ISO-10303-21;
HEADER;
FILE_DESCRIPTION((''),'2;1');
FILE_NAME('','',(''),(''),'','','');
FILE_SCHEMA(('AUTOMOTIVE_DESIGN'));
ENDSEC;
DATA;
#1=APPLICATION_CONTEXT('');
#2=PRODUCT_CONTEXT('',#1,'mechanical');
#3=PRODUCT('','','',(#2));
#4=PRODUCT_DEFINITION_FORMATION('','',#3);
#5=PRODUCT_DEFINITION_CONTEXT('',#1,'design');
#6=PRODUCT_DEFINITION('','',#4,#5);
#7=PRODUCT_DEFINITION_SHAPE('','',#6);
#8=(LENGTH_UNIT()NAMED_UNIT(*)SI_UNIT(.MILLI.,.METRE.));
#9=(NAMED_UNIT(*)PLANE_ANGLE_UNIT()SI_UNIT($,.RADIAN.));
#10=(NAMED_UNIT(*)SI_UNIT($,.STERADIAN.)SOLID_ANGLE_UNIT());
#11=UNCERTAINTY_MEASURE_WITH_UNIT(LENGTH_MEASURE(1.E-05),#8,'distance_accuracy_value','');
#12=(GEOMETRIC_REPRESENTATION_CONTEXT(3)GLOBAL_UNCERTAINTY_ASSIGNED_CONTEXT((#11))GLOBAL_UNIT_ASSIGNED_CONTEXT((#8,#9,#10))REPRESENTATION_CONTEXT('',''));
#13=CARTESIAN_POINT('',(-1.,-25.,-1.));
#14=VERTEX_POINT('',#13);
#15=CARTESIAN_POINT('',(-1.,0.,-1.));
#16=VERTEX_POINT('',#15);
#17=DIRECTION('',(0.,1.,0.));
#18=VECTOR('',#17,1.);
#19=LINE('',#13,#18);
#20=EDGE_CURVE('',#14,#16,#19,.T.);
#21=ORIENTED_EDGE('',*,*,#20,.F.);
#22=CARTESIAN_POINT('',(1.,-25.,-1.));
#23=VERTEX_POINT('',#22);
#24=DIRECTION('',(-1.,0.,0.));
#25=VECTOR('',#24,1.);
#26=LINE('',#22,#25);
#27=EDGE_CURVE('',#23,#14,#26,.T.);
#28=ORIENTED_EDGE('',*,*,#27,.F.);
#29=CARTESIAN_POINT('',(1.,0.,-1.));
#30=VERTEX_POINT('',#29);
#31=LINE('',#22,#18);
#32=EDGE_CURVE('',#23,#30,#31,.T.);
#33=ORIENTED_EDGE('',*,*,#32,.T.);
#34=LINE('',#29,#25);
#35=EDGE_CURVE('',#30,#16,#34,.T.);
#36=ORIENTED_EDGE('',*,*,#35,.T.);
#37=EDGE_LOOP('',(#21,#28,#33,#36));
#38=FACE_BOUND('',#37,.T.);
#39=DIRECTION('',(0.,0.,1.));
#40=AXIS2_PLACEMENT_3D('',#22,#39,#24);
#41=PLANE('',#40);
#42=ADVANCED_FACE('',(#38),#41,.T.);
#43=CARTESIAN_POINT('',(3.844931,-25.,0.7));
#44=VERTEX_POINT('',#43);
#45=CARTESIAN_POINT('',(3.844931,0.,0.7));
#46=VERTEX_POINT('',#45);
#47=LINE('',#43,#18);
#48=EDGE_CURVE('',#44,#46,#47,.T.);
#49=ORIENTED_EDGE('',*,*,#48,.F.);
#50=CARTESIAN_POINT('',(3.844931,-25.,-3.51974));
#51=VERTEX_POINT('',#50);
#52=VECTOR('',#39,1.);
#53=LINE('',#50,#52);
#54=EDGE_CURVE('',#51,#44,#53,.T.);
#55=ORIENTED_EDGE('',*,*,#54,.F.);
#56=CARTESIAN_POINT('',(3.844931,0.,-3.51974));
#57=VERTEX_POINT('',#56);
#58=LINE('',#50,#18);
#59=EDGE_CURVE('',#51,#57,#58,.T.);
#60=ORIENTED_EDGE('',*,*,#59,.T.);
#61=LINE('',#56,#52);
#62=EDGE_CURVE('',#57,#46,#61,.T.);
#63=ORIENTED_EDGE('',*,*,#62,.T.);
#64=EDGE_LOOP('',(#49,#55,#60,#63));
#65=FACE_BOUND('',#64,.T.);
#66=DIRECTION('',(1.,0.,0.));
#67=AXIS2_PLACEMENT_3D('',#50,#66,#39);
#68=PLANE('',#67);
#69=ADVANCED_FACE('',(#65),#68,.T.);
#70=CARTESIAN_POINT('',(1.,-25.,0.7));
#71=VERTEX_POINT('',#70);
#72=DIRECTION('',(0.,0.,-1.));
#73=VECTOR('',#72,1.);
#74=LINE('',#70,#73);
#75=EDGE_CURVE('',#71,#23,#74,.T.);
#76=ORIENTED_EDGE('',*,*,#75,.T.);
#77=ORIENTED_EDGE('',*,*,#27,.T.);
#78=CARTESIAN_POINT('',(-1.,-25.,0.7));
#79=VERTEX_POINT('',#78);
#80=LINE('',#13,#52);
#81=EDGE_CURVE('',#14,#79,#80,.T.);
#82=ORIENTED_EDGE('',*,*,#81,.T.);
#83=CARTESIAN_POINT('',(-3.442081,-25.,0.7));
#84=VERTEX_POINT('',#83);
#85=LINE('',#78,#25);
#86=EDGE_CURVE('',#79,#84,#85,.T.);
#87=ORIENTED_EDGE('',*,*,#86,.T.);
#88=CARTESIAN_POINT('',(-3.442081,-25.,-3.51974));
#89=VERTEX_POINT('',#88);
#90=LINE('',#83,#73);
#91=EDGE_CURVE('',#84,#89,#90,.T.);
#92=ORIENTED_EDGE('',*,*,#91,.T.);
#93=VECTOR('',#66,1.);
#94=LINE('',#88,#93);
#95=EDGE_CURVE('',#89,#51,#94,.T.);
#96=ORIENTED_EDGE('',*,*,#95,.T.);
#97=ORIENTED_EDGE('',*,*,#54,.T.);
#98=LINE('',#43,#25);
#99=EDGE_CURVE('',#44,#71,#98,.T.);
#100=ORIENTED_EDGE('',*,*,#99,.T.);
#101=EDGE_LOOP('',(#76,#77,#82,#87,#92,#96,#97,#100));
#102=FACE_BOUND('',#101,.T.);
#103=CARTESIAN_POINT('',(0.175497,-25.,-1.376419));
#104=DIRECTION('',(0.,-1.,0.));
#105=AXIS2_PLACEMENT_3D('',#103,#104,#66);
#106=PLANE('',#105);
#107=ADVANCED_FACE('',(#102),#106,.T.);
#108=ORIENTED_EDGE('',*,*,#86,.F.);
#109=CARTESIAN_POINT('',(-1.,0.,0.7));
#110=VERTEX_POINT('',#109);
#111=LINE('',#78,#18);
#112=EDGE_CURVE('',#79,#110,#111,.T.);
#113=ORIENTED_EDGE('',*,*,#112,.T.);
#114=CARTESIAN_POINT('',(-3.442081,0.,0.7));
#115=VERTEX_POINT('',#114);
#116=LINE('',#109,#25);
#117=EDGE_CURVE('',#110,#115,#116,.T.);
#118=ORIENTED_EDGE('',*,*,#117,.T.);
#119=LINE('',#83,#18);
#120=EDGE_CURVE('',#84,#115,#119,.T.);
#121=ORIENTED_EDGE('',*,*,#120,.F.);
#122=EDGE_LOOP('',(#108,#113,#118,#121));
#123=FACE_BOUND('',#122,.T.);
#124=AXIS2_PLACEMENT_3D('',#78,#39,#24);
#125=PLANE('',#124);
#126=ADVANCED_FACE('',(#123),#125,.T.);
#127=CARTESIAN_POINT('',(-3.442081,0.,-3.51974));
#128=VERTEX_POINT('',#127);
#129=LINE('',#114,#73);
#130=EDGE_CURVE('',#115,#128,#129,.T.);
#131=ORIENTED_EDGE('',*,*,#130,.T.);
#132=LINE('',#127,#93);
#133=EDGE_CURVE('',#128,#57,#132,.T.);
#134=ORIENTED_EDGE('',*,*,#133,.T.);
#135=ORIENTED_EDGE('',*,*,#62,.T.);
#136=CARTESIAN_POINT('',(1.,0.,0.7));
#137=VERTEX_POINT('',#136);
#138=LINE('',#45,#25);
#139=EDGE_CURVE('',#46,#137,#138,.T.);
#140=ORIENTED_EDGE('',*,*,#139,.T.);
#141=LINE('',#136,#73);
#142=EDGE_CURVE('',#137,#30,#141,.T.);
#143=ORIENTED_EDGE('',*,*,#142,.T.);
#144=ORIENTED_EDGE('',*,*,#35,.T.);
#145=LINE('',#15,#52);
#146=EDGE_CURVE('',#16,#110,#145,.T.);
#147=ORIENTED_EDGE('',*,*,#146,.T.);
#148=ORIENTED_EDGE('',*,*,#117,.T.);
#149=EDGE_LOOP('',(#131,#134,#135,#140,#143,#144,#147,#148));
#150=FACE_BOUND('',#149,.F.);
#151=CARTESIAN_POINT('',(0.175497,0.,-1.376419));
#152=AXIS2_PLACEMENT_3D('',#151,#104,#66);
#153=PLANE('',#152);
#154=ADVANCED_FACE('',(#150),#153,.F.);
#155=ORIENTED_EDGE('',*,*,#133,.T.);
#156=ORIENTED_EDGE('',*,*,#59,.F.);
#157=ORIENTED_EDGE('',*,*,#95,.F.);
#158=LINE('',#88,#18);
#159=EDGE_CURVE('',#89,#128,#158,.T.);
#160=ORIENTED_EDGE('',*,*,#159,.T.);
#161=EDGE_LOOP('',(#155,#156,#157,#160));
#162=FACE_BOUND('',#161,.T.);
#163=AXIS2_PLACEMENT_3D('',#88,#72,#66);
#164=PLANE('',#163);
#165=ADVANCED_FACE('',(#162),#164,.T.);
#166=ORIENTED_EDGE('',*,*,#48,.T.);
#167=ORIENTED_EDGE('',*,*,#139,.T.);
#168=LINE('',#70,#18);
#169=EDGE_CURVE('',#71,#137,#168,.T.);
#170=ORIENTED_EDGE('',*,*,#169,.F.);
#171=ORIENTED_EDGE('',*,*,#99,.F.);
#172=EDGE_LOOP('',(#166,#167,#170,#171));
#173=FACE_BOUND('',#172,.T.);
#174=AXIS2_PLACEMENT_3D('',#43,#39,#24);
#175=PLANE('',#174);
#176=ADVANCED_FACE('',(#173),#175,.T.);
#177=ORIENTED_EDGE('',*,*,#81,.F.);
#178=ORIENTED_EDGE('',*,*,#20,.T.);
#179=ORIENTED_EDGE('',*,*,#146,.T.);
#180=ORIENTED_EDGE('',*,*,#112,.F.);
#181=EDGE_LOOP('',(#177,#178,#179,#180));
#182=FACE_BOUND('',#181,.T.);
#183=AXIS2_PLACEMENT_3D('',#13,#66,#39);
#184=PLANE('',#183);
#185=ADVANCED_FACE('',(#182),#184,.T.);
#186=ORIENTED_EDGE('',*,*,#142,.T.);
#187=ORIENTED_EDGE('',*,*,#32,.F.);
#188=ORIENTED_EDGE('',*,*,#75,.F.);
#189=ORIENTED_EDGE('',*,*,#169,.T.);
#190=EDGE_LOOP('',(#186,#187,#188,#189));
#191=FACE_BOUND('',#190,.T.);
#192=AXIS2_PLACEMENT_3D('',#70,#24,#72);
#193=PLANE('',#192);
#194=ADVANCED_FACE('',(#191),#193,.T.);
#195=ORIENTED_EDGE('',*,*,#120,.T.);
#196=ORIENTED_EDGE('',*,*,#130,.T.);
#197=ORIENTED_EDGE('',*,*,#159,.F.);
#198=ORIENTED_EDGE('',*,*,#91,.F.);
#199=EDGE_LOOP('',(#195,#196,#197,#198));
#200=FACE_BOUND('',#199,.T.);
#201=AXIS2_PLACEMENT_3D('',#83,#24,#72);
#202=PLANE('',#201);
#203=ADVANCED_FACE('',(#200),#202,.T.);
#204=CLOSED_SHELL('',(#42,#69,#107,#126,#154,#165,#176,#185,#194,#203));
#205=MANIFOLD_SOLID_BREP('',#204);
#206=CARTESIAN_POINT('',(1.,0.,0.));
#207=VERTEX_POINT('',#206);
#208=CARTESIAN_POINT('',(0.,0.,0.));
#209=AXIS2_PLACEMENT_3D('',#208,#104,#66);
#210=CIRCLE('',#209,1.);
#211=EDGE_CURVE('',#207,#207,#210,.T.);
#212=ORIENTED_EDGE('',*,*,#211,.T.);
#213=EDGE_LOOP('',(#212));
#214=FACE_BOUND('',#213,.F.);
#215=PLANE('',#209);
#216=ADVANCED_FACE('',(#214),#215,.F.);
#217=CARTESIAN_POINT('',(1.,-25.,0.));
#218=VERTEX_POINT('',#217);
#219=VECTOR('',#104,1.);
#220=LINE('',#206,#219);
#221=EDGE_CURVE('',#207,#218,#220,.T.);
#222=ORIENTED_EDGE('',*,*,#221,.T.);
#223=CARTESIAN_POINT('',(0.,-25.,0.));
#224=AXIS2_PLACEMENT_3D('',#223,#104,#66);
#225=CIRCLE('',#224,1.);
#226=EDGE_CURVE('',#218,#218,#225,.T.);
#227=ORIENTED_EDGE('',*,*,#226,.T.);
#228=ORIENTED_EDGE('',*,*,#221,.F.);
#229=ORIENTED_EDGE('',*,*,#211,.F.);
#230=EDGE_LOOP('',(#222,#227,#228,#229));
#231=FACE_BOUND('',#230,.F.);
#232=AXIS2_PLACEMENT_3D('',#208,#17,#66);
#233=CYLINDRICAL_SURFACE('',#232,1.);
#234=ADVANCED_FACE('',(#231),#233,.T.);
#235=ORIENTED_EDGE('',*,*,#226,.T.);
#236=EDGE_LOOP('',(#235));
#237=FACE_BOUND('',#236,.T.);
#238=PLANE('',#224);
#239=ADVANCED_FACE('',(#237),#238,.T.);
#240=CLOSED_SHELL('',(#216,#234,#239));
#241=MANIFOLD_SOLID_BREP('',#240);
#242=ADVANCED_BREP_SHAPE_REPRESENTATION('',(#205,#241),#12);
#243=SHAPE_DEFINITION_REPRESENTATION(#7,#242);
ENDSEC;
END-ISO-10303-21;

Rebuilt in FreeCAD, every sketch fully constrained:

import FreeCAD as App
import Part
import Sketcher
from FreeCAD import Vector
Q = App.Units.Quantity


def add_polygon(sketch, points):
    """Adds a closed chain of lines whose ends are joined by coincident constraints."""
    first, n = sketch.GeometryCount, len(points)
    for a, b in zip(points, points[1:] + points[:1]):
        sketch.addGeometry(Part.LineSegment(App.Vector(*a, 0), App.Vector(*b, 0)), False)
    for i in range(n):
        sketch.addConstraint(Sketcher.Constraint("Coincident", first + i, 2, first + (i + 1) % n, 1))

doc = App.newDocument("Part")
body = doc.addObject("PartDesign::Body", "Body")

# Sketch on XZ plane
sketch1 = body.newObject("Sketcher::SketchObject", "Sketch")
sketch1.AttachmentSupport = (doc.getObject("XZ_Plane"), [""])
sketch1.MapMode = "FlatFace"
sketch1.addGeometry(Part.Circle(Vector(0, 0, 0), Vector(0, 0, 1), 1), False)
sketch1.addConstraint(Sketcher.Constraint("Coincident", 0, 3, -1, 1))
sketch1.addConstraint(Sketcher.Constraint("Diameter", 0, Q("2 mm")))
pad1 = body.newObject("PartDesign::Pad", "Pad")
pad1.Profile = sketch1
pad1.Length = 25
body2 = doc.addObject("PartDesign::Body", "Body001")

# Sketch on XZ plane
sketch2 = body2.newObject("Sketcher::SketchObject", "Sketch001")
sketch2.AttachmentSupport = (doc.getObject("XZ_Plane001"), [""])
sketch2.MapMode = "FlatFace"
sketch2.AttachmentOffset = App.Placement(Vector(0, 0, 25), App.Rotation())
add_polygon(sketch2, [(-1, 0.7), (-3.4, 0.7), (-3.4, -3.5), (3.8, -3.5), (3.8, 0.7), (1, 0.7), (1, -1), (-1, -1)])  # lines 0-7
sketch2.addConstraint(Sketcher.Constraint("Horizontal", 0))
sketch2.addConstraint(Sketcher.Constraint("Vertical", 1))
sketch2.addConstraint(Sketcher.Constraint("Horizontal", 2))
sketch2.addConstraint(Sketcher.Constraint("Vertical", 3))
sketch2.addConstraint(Sketcher.Constraint("Horizontal", 4))
sketch2.addConstraint(Sketcher.Constraint("Vertical", 5))
sketch2.addConstraint(Sketcher.Constraint("Horizontal", 6))
sketch2.addConstraint(Sketcher.Constraint("Vertical", 7))
sketch2.addConstraint(Sketcher.Constraint("Symmetric", 4, 2, 7, 2, -2))
sketch2.addConstraint(Sketcher.Constraint("DistanceX", 6, 2, 6, 1, Q("2 mm")))
sketch2.addConstraint(Sketcher.Constraint("DistanceY", 5, 2, 5, 1, Q("1.7 mm")))
sketch2.addConstraint(Sketcher.Constraint("DistanceY", 5, 2, -1, 1, Q("1 mm")))
sketch2.addConstraint(Sketcher.Constraint("DistanceX", 0, 2, 0, 1, Q("2.442081 mm")))
sketch2.addConstraint(Sketcher.Constraint("DistanceX", 2, 1, 2, 2, Q("7.287012 mm")))
sketch2.addConstraint(Sketcher.Constraint("DistanceY", 1, 2, 1, 1, Q("4.21974 mm")))
pad2 = body2.newObject("PartDesign::Pad", "Pad001")
pad2.Profile = sketch2
pad2.Length = 25
pad2.Reversed = True

doc.recompute()
